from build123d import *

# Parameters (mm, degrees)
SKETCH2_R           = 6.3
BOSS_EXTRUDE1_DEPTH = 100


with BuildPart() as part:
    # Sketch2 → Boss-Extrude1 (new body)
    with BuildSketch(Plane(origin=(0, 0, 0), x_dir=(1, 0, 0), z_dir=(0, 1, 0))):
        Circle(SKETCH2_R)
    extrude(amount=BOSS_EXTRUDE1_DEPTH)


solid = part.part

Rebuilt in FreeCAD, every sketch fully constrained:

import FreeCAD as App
import Part
import Sketcher
Q = App.Units.Quantity

doc = App.newDocument("Part")
body = doc.addObject("PartDesign::Body", "Body")

sketch1 = body.newObject("Sketcher::SketchObject", "Sketch")
sketch1.AttachmentSupport = (doc.getObject("XZ_Plane"), [""])
sketch1.MapMode = "FlatFace"
sketch1.addGeometry(Part.Circle(App.Vector(0, 0, 0), App.Vector(0, 0, 1), 6), False)
sketch1.addConstraint([
    Sketcher.Constraint("Coincident", 0, 3, -1, 1),
    Sketcher.Constraint("Diameter", 0, Q("12.6 mm")),
])
pad1 = body.newObject("PartDesign::Pad", "Pad")
pad1.Profile = sketch1
pad1.Length = 100
pad1.Reversed = True

doc.recompute()
